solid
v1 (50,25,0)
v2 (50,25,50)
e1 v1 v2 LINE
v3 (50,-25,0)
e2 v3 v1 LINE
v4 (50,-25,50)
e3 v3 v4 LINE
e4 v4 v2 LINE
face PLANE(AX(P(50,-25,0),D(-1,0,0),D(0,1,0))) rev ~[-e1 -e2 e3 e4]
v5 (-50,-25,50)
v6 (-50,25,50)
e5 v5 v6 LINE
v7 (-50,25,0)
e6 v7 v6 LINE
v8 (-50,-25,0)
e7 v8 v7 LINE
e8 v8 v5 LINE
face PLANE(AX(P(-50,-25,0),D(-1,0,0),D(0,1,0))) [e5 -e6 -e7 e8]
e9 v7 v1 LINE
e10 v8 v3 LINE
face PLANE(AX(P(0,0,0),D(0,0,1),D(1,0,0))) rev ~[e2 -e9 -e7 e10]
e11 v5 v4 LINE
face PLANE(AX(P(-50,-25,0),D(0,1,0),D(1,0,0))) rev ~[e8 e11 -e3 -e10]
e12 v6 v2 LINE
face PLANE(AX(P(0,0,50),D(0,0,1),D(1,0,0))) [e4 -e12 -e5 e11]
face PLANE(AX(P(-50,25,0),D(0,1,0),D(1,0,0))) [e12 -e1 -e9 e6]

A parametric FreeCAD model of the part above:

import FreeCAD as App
import Part
import Sketcher
Q = App.Units.Quantity

doc = App.newDocument("Part")
body = doc.addObject("PartDesign::Body", "Body")

# Sketch on XY plane
sketch1 = doc.addObject("Sketcher::SketchObject", "Sketch")
body.addObject(sketch1)
sketch1.AttachmentSupport = (doc.XY_Plane, [""])
sketch1.MapMode = "FlatFace"
sketch1.addGeometry([
    Part.LineSegment(App.Vector(-50, 25, 0), App.Vector(-50, -25, 0)),
    Part.LineSegment(App.Vector(-50, -25, 0), App.Vector(50, -25, 0)),
    Part.LineSegment(App.Vector(50, -25, 0), App.Vector(50, 25, 0)),
    Part.LineSegment(App.Vector(50, 25, 0), App.Vector(-50, 25, 0)),
], False)
sketch1.addConstraint([
    Sketcher.Constraint("Coincident", 0, 2, 1, 1),
    Sketcher.Constraint("Coincident", 1, 2, 2, 1),
    Sketcher.Constraint("Coincident", 2, 2, 3, 1),
    Sketcher.Constraint("Coincident", 3, 2, 0, 1),
    Sketcher.Constraint("Vertical", 0),
    Sketcher.Constraint("Horizontal", 1),
    Sketcher.Constraint("Vertical", 2),
    Sketcher.Constraint("Horizontal", 3),
    Sketcher.Constraint("Symmetric", 0, 2, 2, 2, -1, 1),
    Sketcher.Constraint("DistanceX", 1, 1, 1, 2, Q("100 mm")),
    Sketcher.Constraint("DistanceY", 0, 2, 0, 1, Q("50 mm")),
])
pad1 = doc.addObject("PartDesign::Pad", "Pad")
body.addObject(pad1)
pad1.Profile = sketch1
pad1.Length = 50

doc.recompute()
